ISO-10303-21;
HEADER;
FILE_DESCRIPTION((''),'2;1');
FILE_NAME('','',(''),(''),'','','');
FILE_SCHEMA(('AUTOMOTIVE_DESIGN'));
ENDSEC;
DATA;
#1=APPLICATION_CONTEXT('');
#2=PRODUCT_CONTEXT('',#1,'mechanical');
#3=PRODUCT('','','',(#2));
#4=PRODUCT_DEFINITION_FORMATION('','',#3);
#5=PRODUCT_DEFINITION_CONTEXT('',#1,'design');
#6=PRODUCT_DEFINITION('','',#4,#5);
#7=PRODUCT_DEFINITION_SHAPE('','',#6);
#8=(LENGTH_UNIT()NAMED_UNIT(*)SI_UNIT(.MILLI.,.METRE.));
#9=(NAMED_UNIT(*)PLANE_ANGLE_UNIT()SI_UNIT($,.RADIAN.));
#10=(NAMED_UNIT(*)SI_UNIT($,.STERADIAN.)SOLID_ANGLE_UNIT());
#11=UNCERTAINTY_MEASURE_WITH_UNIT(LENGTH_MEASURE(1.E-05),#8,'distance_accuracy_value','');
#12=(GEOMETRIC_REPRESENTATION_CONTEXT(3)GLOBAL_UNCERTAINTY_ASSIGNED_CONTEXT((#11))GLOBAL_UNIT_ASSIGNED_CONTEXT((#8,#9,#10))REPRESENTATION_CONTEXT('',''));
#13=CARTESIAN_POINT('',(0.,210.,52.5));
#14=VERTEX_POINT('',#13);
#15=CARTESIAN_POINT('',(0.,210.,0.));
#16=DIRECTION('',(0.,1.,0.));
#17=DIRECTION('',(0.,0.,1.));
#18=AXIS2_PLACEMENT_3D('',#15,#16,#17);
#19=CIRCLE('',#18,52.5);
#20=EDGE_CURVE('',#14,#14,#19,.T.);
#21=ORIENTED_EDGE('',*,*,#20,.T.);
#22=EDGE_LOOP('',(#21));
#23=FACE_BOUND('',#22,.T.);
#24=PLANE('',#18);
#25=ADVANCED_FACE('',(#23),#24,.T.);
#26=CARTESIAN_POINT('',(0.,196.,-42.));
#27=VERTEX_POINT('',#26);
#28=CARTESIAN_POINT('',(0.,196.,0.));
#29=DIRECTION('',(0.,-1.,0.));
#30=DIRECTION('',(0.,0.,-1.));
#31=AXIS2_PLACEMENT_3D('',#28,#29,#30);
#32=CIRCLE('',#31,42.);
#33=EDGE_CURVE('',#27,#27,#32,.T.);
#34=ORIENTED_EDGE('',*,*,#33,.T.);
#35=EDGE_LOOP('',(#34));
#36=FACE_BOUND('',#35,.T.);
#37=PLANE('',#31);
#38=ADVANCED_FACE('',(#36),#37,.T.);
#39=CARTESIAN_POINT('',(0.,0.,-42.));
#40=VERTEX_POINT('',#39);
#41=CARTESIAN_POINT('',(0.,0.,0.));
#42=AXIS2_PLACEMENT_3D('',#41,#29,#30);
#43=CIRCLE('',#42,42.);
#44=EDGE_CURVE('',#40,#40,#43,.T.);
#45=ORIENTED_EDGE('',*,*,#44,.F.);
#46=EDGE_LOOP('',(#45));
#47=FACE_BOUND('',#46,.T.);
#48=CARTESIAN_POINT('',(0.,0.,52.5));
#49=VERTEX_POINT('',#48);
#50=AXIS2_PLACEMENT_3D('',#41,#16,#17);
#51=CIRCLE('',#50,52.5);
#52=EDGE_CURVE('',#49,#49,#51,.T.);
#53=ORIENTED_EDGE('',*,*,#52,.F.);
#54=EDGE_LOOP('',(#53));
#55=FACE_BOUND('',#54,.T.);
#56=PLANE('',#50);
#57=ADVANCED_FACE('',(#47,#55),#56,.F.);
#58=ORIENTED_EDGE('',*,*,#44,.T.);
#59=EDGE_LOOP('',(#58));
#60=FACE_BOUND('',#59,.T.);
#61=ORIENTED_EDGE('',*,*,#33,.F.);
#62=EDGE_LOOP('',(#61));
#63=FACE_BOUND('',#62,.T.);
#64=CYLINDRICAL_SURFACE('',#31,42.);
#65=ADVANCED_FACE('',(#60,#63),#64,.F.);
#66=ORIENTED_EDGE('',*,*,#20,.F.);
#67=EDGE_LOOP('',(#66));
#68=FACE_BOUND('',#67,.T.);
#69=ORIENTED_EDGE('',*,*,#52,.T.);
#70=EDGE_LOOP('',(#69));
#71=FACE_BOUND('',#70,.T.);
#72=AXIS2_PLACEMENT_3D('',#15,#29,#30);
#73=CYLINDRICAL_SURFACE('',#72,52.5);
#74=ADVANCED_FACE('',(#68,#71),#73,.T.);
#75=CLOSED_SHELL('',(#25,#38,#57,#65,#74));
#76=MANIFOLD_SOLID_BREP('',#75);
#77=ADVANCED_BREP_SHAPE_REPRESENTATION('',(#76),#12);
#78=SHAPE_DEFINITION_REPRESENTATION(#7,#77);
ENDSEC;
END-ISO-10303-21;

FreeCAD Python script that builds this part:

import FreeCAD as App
import Part
import Sketcher

doc = App.newDocument("Part")
params = doc.addObject("Spreadsheet::Sheet", "Params")
for row, (alias, value) in enumerate([
    ("sketch1_diameter", "105 mm"),
    ("pad1_length", "210 mm"),
    ("sketch2_diameter", "84 mm"),
    ("pocket1_length", "196 mm"),
], start=1):
    params.set(f"A{row}", alias)
    params.set(f"B{row}", "=" + value)
    params.setAlias(f"B{row}", alias)

body = doc.addObject("PartDesign::Body", "Body")

sketch1 = body.newObject("Sketcher::SketchObject", "Sketch")
sketch1.AttachmentSupport = (doc.getObject("XZ_Plane"), [""])
sketch1.MapMode = "FlatFace"
sketch1.addGeometry(Part.Circle(App.Vector(0, 0, 0), App.Vector(0, 0, 1), 52.5), False)
sketch1.addConstraint([
    Sketcher.Constraint("Coincident", 0, 3, -1, 1),
    Sketcher.Constraint("Diameter", 0, 105.0),
])
sketch1.setExpression("Constraints[1]", "Params.sketch1_diameter")
pad1 = body.newObject("PartDesign::Pad", "Pad")
pad1.Profile = sketch1
pad1.setExpression("Length", "Params.pad1_length")
pad1.Reversed = True

sketch2 = body.newObject("Sketcher::SketchObject", "Sketch001")
sketch2.AttachmentSupport = (doc.getObject("XZ_Plane"), [""])
sketch2.MapMode = "FlatFace"
sketch2.addGeometry(Part.Circle(App.Vector(0, 0, 0), App.Vector(0, 0, 1), 42), False)
sketch2.addConstraint([
    Sketcher.Constraint("Coincident", 0, 3, -1, 1),
    Sketcher.Constraint("Diameter", 0, 84.0),
])
sketch2.setExpression("Constraints[1]", "Params.sketch2_diameter")
pocket1 = body.newObject("PartDesign::Pocket", "Pocket")
pocket1.Profile = sketch2
pocket1.setExpression("Length", "Params.pocket1_length")

doc.recompute()
